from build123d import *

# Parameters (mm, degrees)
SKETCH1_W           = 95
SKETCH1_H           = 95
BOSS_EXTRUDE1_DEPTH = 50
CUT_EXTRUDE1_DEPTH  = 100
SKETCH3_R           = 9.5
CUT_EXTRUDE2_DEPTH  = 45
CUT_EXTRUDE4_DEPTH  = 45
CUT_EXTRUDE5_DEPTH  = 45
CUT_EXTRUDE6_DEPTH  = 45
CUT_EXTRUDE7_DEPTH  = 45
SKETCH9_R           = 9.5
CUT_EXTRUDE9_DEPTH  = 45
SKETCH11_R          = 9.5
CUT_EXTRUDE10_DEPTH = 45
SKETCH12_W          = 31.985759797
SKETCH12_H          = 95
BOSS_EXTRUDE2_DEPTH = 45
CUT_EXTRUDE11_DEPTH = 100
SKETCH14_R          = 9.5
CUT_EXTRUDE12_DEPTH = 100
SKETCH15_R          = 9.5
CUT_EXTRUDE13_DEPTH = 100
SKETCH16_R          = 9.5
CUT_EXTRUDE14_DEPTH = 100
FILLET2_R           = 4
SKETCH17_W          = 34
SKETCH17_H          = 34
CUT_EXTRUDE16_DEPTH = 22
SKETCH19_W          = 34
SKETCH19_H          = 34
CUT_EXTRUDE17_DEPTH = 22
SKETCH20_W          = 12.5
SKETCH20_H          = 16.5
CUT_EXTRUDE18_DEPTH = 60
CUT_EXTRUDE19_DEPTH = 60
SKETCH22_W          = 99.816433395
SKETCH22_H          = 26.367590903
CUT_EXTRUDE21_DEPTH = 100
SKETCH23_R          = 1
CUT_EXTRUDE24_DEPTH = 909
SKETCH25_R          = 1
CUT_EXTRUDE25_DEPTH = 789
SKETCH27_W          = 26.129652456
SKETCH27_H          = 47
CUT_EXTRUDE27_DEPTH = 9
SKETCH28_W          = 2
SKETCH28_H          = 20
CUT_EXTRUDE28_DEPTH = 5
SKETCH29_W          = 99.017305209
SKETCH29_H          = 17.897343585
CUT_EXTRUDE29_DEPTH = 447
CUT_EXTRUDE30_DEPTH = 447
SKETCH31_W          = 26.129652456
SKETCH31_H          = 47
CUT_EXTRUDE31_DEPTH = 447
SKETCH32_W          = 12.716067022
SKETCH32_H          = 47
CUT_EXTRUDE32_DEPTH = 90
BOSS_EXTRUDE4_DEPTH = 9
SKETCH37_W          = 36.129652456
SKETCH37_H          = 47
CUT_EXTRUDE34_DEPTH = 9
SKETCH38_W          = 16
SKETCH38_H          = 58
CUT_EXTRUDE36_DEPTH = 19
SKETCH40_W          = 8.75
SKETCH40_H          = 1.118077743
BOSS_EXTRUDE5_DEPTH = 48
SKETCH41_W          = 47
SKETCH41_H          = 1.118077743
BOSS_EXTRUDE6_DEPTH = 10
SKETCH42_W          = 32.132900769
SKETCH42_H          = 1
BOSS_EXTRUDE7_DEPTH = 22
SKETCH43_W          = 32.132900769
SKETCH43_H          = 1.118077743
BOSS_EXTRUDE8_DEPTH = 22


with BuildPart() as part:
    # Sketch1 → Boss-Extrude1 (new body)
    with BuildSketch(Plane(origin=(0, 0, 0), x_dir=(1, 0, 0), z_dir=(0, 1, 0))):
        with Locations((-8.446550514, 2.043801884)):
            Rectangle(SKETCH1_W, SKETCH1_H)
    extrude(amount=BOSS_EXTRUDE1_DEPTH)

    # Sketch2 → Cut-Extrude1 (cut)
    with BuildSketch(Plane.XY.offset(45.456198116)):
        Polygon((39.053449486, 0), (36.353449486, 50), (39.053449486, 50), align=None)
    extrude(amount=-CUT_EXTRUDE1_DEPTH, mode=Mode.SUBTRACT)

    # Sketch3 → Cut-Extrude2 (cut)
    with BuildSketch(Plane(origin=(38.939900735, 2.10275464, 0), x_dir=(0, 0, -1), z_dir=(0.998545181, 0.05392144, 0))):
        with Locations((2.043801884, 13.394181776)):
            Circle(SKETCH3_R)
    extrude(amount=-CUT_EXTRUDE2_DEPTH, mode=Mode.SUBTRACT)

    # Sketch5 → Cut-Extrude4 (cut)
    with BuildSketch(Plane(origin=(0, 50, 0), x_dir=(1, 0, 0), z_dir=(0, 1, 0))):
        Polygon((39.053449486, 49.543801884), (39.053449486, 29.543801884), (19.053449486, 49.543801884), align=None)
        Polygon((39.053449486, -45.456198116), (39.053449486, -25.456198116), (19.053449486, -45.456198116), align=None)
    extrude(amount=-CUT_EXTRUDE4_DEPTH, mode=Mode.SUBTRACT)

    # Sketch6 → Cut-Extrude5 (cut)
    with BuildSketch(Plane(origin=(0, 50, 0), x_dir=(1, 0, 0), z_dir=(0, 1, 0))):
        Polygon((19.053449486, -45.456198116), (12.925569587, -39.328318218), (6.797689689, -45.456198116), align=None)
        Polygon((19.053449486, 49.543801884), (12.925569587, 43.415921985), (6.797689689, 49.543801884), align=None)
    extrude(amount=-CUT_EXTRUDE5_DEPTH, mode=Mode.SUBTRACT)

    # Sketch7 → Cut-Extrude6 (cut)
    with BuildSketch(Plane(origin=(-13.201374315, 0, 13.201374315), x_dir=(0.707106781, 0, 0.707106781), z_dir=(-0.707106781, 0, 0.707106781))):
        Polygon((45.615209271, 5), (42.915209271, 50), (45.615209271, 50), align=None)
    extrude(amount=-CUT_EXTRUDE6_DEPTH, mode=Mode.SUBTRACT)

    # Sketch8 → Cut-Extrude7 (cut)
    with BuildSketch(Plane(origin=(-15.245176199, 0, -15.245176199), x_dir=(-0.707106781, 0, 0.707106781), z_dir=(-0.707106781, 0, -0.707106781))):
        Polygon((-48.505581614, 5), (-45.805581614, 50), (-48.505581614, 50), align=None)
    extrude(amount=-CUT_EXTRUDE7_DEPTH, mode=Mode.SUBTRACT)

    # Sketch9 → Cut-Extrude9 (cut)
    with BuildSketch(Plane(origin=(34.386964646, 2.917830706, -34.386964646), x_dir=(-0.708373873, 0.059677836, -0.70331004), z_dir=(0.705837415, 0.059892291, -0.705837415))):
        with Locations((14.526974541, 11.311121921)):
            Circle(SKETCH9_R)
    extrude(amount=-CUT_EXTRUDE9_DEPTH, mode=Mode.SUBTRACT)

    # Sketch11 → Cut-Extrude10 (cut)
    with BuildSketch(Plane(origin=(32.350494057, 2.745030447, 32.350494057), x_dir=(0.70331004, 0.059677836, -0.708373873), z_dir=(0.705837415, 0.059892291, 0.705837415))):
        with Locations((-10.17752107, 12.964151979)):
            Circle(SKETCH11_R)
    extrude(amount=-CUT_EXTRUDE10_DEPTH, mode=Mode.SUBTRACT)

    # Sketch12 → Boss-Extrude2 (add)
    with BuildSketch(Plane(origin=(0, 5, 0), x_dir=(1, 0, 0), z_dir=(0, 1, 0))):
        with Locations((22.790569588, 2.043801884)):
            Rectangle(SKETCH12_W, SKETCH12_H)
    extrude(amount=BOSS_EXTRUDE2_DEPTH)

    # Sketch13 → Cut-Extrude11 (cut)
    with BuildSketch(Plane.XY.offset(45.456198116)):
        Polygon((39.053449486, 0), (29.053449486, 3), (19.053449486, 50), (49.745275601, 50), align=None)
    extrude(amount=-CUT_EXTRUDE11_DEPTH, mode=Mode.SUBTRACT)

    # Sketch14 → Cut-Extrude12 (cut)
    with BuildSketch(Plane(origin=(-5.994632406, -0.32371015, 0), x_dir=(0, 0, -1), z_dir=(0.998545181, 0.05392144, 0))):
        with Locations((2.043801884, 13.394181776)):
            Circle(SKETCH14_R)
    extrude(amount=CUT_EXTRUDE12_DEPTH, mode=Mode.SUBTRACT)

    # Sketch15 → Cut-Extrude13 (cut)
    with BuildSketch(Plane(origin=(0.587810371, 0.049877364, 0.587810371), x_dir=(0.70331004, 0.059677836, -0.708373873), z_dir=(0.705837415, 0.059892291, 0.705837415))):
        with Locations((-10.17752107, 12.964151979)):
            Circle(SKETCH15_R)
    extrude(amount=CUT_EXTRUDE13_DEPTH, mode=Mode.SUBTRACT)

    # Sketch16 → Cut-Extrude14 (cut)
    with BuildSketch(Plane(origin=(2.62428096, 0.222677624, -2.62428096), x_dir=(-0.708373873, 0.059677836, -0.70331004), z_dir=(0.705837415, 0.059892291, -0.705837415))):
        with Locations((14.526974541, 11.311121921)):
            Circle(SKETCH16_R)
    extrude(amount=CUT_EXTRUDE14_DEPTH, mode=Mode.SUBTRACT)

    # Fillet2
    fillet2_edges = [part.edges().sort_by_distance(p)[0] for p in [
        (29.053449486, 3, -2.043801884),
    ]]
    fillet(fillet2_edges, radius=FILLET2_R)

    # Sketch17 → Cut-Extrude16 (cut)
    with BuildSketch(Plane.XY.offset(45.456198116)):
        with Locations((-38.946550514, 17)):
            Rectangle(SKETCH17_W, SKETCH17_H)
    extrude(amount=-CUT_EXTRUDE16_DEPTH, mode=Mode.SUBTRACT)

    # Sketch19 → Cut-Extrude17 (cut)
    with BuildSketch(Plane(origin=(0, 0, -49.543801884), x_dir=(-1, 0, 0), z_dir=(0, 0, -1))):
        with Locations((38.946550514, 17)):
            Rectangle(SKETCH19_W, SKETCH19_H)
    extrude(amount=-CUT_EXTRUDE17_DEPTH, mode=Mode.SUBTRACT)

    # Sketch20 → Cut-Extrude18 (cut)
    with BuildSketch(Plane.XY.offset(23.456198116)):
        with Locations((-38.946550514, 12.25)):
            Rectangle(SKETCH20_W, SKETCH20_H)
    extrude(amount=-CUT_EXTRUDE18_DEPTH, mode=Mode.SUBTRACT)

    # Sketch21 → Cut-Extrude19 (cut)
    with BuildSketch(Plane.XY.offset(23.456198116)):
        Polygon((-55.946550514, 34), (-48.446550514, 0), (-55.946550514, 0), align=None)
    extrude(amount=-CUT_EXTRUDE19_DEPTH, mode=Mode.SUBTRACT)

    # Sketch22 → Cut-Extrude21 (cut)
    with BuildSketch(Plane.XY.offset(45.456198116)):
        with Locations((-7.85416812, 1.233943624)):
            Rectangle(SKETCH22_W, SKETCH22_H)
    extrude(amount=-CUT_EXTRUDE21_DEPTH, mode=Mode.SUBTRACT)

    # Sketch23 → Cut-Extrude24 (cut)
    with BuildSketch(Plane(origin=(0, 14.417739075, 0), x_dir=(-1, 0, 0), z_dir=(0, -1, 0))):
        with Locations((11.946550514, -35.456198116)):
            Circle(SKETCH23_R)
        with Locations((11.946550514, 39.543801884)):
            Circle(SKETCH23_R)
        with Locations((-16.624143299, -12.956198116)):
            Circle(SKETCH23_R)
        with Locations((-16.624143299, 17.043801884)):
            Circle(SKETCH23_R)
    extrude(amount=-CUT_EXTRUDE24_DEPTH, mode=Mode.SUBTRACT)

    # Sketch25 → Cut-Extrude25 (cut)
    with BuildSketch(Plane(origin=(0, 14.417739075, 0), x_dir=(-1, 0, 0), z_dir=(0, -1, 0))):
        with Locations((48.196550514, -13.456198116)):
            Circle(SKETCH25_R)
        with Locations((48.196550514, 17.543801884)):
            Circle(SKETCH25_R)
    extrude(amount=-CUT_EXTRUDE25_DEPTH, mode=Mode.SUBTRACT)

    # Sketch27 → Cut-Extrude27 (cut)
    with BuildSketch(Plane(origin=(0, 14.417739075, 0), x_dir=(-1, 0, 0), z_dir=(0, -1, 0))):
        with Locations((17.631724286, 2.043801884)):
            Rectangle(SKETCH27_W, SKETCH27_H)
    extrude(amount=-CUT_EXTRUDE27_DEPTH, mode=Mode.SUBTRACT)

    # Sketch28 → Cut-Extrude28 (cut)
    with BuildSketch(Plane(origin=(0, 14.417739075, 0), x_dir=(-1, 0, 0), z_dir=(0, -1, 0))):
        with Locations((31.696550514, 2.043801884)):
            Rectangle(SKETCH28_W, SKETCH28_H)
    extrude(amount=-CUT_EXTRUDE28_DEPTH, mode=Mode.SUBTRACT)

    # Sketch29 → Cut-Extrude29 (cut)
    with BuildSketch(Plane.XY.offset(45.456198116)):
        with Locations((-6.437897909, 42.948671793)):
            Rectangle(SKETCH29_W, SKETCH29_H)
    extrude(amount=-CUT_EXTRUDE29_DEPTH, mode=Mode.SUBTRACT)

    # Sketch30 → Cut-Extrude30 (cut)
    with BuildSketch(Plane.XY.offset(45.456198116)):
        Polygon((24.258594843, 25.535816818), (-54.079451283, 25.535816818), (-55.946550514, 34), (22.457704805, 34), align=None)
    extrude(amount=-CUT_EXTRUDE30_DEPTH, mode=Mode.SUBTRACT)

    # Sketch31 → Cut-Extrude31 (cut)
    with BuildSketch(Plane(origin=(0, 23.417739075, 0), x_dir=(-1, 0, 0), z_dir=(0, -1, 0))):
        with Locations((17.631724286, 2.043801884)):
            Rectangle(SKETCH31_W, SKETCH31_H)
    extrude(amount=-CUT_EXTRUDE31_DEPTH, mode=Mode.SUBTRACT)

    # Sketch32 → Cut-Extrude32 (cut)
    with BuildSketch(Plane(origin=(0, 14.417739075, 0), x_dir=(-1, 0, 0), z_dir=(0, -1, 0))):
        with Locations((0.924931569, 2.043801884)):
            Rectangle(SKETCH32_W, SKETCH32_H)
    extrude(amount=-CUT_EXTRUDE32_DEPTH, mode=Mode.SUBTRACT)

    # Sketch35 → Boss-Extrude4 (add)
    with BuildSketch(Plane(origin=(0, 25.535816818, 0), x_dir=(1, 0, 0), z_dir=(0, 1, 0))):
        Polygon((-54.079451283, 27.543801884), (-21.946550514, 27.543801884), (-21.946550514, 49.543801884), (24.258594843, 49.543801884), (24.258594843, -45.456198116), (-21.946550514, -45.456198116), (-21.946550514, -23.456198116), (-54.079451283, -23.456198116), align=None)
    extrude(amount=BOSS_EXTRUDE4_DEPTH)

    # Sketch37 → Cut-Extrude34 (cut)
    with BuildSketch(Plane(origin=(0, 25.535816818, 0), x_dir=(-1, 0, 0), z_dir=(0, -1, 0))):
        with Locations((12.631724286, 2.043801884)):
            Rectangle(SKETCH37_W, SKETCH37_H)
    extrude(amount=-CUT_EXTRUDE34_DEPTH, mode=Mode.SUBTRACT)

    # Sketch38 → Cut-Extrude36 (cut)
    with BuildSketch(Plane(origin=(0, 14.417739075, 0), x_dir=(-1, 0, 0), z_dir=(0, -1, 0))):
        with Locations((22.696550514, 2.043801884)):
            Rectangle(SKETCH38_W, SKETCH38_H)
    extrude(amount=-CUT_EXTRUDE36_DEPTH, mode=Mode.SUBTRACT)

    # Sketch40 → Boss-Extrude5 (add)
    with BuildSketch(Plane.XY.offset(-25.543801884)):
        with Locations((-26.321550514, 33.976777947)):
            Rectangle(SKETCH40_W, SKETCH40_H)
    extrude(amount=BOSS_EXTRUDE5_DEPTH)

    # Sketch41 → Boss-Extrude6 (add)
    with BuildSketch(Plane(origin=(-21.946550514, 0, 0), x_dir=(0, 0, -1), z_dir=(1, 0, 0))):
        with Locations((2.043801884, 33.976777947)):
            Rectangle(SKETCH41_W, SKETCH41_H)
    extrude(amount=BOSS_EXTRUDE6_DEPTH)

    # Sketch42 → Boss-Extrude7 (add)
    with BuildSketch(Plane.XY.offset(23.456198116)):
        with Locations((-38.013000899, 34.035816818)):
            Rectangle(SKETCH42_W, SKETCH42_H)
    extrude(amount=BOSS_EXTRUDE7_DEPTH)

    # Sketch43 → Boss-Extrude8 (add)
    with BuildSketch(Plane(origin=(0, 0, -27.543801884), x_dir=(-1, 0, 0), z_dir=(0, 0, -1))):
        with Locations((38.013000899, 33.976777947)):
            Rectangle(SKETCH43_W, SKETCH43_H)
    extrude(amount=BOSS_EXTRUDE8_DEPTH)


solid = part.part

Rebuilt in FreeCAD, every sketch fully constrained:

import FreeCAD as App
import Part
import Sketcher


def edges_at(feature, points):
    """Names of the edges that pass closest to the given points."""
    edges = feature.Shape.Edges
    near = lambda p: min(range(len(edges)), key=lambda i: edges[i].distToShape(Part.Vertex(*p))[0])
    return sorted({f"Edge{near(p) + 1}" for p in points})

doc = App.newDocument("Part")
body = doc.addObject("PartDesign::Body", "Body")

# Sketch on XZ plane
sketch1 = body.newObject("Sketcher::SketchObject", "Sketch")
sketch1.AttachmentSupport = (doc.getObject("XZ_Plane"), [""])
sketch1.MapMode = "FlatFace"
sketch1.addGeometry([
    Part.LineSegment(App.Vector(-56, -50, 0), App.Vector(-56, 45, 0)),
    Part.LineSegment(App.Vector(-56, 45, 0), App.Vector(39, 45, 0)),
    Part.LineSegment(App.Vector(39, 45, 0), App.Vector(39, -50, 0)),
    Part.LineSegment(App.Vector(39, -50, 0), App.Vector(-56, -50, 0)),
], False)
sketch1.addConstraint([
    Sketcher.Constraint("Coincident", 0, 2, 1, 1),
    Sketcher.Constraint("Coincident", 1, 2, 2, 1),
    Sketcher.Constraint("Coincident", 2, 2, 3, 1),
    Sketcher.Constraint("Coincident", 3, 2, 0, 1),
    Sketcher.Constraint("Vertical", 0),
    Sketcher.Constraint("Horizontal", 1),
    Sketcher.Constraint("Vertical", 2),
    Sketcher.Constraint("Horizontal", 3),
    Sketcher.Constraint("Equal", 3, 0),
    Sketcher.Constraint("DistanceX", 1, 1, 1, 2, 95.0),
    Sketcher.Constraint("DistanceY", -1, 1, 0, 2, 45.456198),
    Sketcher.Constraint("DistanceX", 0, 2, -1, 1, 55.946551),
])
pad1 = body.newObject("PartDesign::Pad", "Pad")
pad1.Profile = sketch1
pad1.Length = 50
pad1.Reversed = True

# Sketch on XY plane
sketch2 = body.newObject("Sketcher::SketchObject", "Sketch001")
sketch2.AttachmentSupport = (doc.getObject("XY_Plane"), [""])
sketch2.MapMode = "FlatFace"
sketch2.AttachmentOffset = App.Placement(App.Vector(0, 0, 45.456198), App.Rotation())
sketch2.addGeometry([
    Part.LineSegment(App.Vector(36.4, 50, 0), App.Vector(39.1, 0, 0)),
    Part.LineSegment(App.Vector(39.1, 0, 0), App.Vector(39.1, 50, 0)),
    Part.LineSegment(App.Vector(39.1, 50, 0), App.Vector(36.4, 50, 0)),
], False)
sketch2.addConstraint([
    Sketcher.Constraint("Coincident", 0, 2, 1, 1),
    Sketcher.Constraint("Coincident", 1, 2, 2, 1),
    Sketcher.Constraint("Coincident", 2, 2, 0, 1),
    Sketcher.Constraint("Vertical", 1),
    Sketcher.Constraint("Horizontal", 2),
    Sketcher.Constraint("PointOnObject", 0, 2, -1),
    Sketcher.Constraint("DistanceY", 1, 1, 1, 2, 50.0),
    Sketcher.Constraint("DistanceX", 2, 2, 2, 1, 2.7),
    Sketcher.Constraint("DistanceX", -1, 1, 0, 2, 39.053449),
])
pocket1 = body.newObject("PartDesign::Pocket", "Pocket")
pocket1.Profile = sketch2
pocket1.Length = 100

# Sketch on an angled plane
sketch3 = body.newObject("Sketcher::SketchObject", "Sketch002")
sketch3.Placement = App.Placement(App.Vector(38.939901, 2.102755, 0), App.Rotation(App.Vector(0, 0, -1), App.Vector(-0.05392144, 0.998545181, 0), App.Vector(0.998545181, 0.05392144, 0), "ZXY"))
sketch3.addGeometry(Part.Circle(App.Vector(2, 13, 0), App.Vector(0, 0, 1), 10), False)
sketch3.addConstraint([
    Sketcher.Constraint("Diameter", 0, 19.0),
    Sketcher.Constraint("DistanceX", -1, 1, 0, 3, 2.043802),
    Sketcher.Constraint("DistanceY", -1, 1, 0, 3, 13.394182),
])
pocket2 = body.newObject("PartDesign::Pocket", "Pocket001")
pocket2.Profile = sketch3
pocket2.Length = 45

# Sketch on XZ plane
sketch4 = body.newObject("Sketcher::SketchObject", "Sketch003")
sketch4.AttachmentSupport = (doc.getObject("XZ_Plane"), [""])
sketch4.MapMode = "FlatFace"
sketch4.AttachmentOffset = App.Placement(App.Vector(0, 0, -50), App.Rotation())
sketch4.addGeometry([
    Part.LineSegment(App.Vector(39, -30, 0), App.Vector(39, -50, 0)),  # 0
    Part.LineSegment(App.Vector(39, -50, 0), App.Vector(19, -50, 0)),  # 1
    Part.LineSegment(App.Vector(19, -50, 0), App.Vector(39, -30, 0)),  # 2
    Part.LineSegment(App.Vector(39, 45, 0), App.Vector(39, 25, 0)),  # 3
    Part.LineSegment(App.Vector(39, 25, 0), App.Vector(19, 45, 0)),  # 4
    Part.LineSegment(App.Vector(19, 45, 0), App.Vector(39, 45, 0)),  # 5
], False)
sketch4.addConstraint([
    Sketcher.Constraint("Coincident", 0, 2, 1, 1),
    Sketcher.Constraint("Coincident", 1, 2, 2, 1),
    Sketcher.Constraint("Coincident", 2, 2, 0, 1),
    Sketcher.Constraint("Coincident", 3, 2, 4, 1),
    Sketcher.Constraint("Coincident", 4, 2, 5, 1),
    Sketcher.Constraint("Coincident", 5, 2, 3, 1),
    Sketcher.Constraint("Vertical", 0),
    Sketcher.Constraint("Horizontal", 1),
    Sketcher.Constraint("Vertical", 3),
    Sketcher.Constraint("Horizontal", 5),
    Sketcher.Constraint("Perpendicular", 2, 4),
    Sketcher.Constraint("Vertical", 2, 2, 3, 2),
    Sketcher.Constraint("Vertical", 1, 2, 4, 2),
    Sketcher.Constraint("Equal", 5, 0),
    Sketcher.Constraint("DistanceX", 1, 2, 1, 1, 20.0),
    Sketcher.Constraint("DistanceY", 2, 2, 3, 2, 55.0),
    Sketcher.Constraint("DistanceY", 0, 2, -1, 1, 49.543802),
    Sketcher.Constraint("DistanceX", -1, 1, 0, 2, 39.053449),
])
pocket3 = body.newObject("PartDesign::Pocket", "Pocket002")
pocket3.Profile = sketch4
pocket3.Length = 45
pocket3.Reversed = True

# Sketch on XZ plane
sketch5 = body.newObject("Sketcher::SketchObject", "Sketch004")
sketch5.AttachmentSupport = (doc.getObject("XZ_Plane"), [""])
sketch5.MapMode = "FlatFace"
sketch5.AttachmentOffset = App.Placement(App.Vector(0, 0, -50), App.Rotation())
sketch5.addGeometry([
    Part.LineSegment(App.Vector(19, 45, 0), App.Vector(13, 39, 0)),  # 0
    Part.LineSegment(App.Vector(13, 39, 0), App.Vector(7, 45, 0)),  # 1
    Part.LineSegment(App.Vector(7, 45, 0), App.Vector(19, 45, 0)),  # 2
    Part.LineSegment(App.Vector(13, -43, 0), App.Vector(19, -50, 0)),  # 3
    Part.LineSegment(App.Vector(19, -50, 0), App.Vector(7, -50, 0)),  # 4
    Part.LineSegment(App.Vector(7, -50, 0), App.Vector(13, -43, 0)),  # 5
], False)
sketch5.addConstraint([
    Sketcher.Constraint("Coincident", 0, 2, 1, 1),
    Sketcher.Constraint("Coincident", 1, 2, 2, 1),
    Sketcher.Constraint("Coincident", 2, 2, 0, 1),
    Sketcher.Constraint("Coincident", 3, 2, 4, 1),
    Sketcher.Constraint("Coincident", 4, 2, 5, 1),
    Sketcher.Constraint("Coincident", 5, 2, 3, 1),
    Sketcher.Constraint("Horizontal", 2),
    Sketcher.Constraint("Horizontal", 4),
    Sketcher.Constraint("Perpendicular", 0, 1),
    Sketcher.Constraint("Parallel", 1, 3),
    Sketcher.Constraint("Perpendicular", 3, 5),
    Sketcher.Constraint("Vertical", 2, 2, 3, 2),
    Sketcher.Constraint("Vertical", 1, 2, 4, 2),
    Sketcher.Constraint("Vertical", 0, 2, 5, 2),
    Sketcher.Constraint("DistanceY", 3, 2, 2, 2, 95.0),
    Sketcher.Constraint("DistanceX", 2, 1, 2, 2, 12.25576),
    Sketcher.Constraint("DistanceY", -1, 1, 1, 2, 45.456198),
    Sketcher.Constraint("DistanceX", -1, 1, 0, 2, 12.92557),
])
pocket4 = body.newObject("PartDesign::Pocket", "Pocket003")
pocket4.Profile = sketch5
pocket4.Length = 45
pocket4.Reversed = True

# Sketch on an angled plane
sketch6 = body.newObject("Sketcher::SketchObject", "Sketch005")
sketch6.Placement = App.Placement(App.Vector(-13.201374, 0, 13.201374), App.Rotation(App.Vector(0.707106781, 0, 0.707106781), App.Vector(0, 0.999999999, 0), App.Vector(-0.707106781, 0, 0.707106781), "ZXY"))
sketch6.addGeometry([
    Part.LineSegment(App.Vector(42.9, 50, 0), App.Vector(45.6, 5, 0)),
    Part.LineSegment(App.Vector(45.6, 5, 0), App.Vector(45.6, 50, 0)),
    Part.LineSegment(App.Vector(45.6, 50, 0), App.Vector(42.9, 50, 0)),
], False)
sketch6.addConstraint([
    Sketcher.Constraint("Coincident", 0, 2, 1, 1),
    Sketcher.Constraint("Coincident", 1, 2, 2, 1),
    Sketcher.Constraint("Coincident", 2, 2, 0, 1),
    Sketcher.Constraint("Vertical", 1),
    Sketcher.Constraint("Horizontal", 2),
    Sketcher.Constraint("DistanceY", 1, 1, 1, 2, 45.0),
    Sketcher.Constraint("DistanceX", 2, 2, 2, 1, 2.7),
    Sketcher.Constraint("DistanceY", -1, 1, 0, 2, 5.0),
    Sketcher.Constraint("DistanceX", -1, 1, 0, 2, 45.615209),
])
pocket5 = body.newObject("PartDesign::Pocket", "Pocket004")
pocket5.Profile = sketch6
pocket5.Length = 45

# Sketch on an angled plane
sketch7 = body.newObject("Sketcher::SketchObject", "Sketch006")
sketch7.Placement = App.Placement(App.Vector(-15.245176, 0, -15.245176), App.Rotation(App.Vector(-0.707106781, 0, 0.707106781), App.Vector(0, 0.999999999, 0), App.Vector(-0.707106781, 0, -0.707106781), "ZXY"))
sketch7.addGeometry([
    Part.LineSegment(App.Vector(-48.5, 5, 0), App.Vector(-45.8, 50, 0)),
    Part.LineSegment(App.Vector(-45.8, 50, 0), App.Vector(-48.5, 50, 0)),
    Part.LineSegment(App.Vector(-48.5, 50, 0), App.Vector(-48.5, 5, 0)),
], False)
sketch7.addConstraint([
    Sketcher.Constraint("Coincident", 0, 2, 1, 1),
    Sketcher.Constraint("Coincident", 1, 2, 2, 1),
    Sketcher.Constraint("Coincident", 2, 2, 0, 1),
    Sketcher.Constraint("Horizontal", 1),
    Sketcher.Constraint("Vertical", 2),
    Sketcher.Constraint("DistanceY", 2, 2, 2, 1, 45.0),
    Sketcher.Constraint("DistanceX", 1, 2, 1, 1, 2.7),
    Sketcher.Constraint("DistanceY", -1, 1, 0, 2, 50.0),
    Sketcher.Constraint("DistanceX", 0, 2, -1, 1, 45.805582),
])
pocket6 = body.newObject("PartDesign::Pocket", "Pocket005")
pocket6.Profile = sketch7
pocket6.Length = 45

# Sketch on an angled plane
sketch8 = body.newObject("Sketcher::SketchObject", "Sketch007")
sketch8.Placement = App.Placement(App.Vector(34.386965, 2.917831, -34.386965), App.Rotation(App.Vector(-0.708373873, 0.059677836, -0.70331004), App.Vector(0, 0.996419324, 0.084548984), App.Vector(0.705837415, 0.059892291, -0.705837415), "ZXY"))
sketch8.addGeometry(Part.Circle(App.Vector(15, 11, 0), App.Vector(0, 0, 1), 10), False)
sketch8.addConstraint([
    Sketcher.Constraint("Diameter", 0, 19.0),
    Sketcher.Constraint("DistanceY", -1, 1, 0, 3, 11.311122),
    Sketcher.Constraint("DistanceX", -1, 1, 0, 3, 14.526975),
])
pocket7 = body.newObject("PartDesign::Pocket", "Pocket006")
pocket7.Profile = sketch8
pocket7.Length = 45

# Sketch on an angled plane
sketch9 = body.newObject("Sketcher::SketchObject", "Sketch008")
sketch9.Placement = App.Placement(App.Vector(32.350494, 2.74503, 32.350494), App.Rotation(App.Vector(0.70331004, 0.059677836, -0.708373873), App.Vector(-0.084548984, 0.996419324, 0), App.Vector(0.705837415, 0.059892291, 0.705837415), "ZXY"))
sketch9.addGeometry(Part.Circle(App.Vector(-10, 13, 0), App.Vector(0, 0, 1), 10), False)
sketch9.addConstraint([
    Sketcher.Constraint("Diameter", 0, 19.0),
    Sketcher.Constraint("DistanceX", 0, 3, -1, 1, 10.177521),
    Sketcher.Constraint("DistanceY", -1, 1, 0, 3, 12.964152),
])
pocket8 = body.newObject("PartDesign::Pocket", "Pocket007")
pocket8.Profile = sketch9
pocket8.Length = 45

# Sketch on XZ plane
sketch10 = body.newObject("Sketcher::SketchObject", "Sketch009")
sketch10.AttachmentSupport = (doc.getObject("XZ_Plane"), [""])
sketch10.MapMode = "FlatFace"
sketch10.AttachmentOffset = App.Placement(App.Vector(0, 0, -5), App.Rotation())
sketch10.addGeometry([
    Part.LineSegment(App.Vector(7, -50, 0), App.Vector(7, 45, 0)),
    Part.LineSegment(App.Vector(7, 45, 0), App.Vector(39, 45, 0)),
    Part.LineSegment(App.Vector(39, 45, 0), App.Vector(39, -50, 0)),
    Part.LineSegment(App.Vector(39, -50, 0), App.Vector(7, -50, 0)),
], False)
sketch10.addConstraint([
    Sketcher.Constraint("Coincident", 0, 2, 1, 1),
    Sketcher.Constraint("Coincident", 1, 2, 2, 1),
    Sketcher.Constraint("Coincident", 2, 2, 3, 1),
    Sketcher.Constraint("Coincident", 3, 2, 0, 1),
    Sketcher.Constraint("Vertical", 0),
    Sketcher.Constraint("Horizontal", 1),
    Sketcher.Constraint("Vertical", 2),
    Sketcher.Constraint("Horizontal", 3),
    Sketcher.Constraint("DistanceY", 0, 1, 0, 2, 95.0),
    Sketcher.Constraint("DistanceX", 1, 1, 1, 2, 31.98576),
    Sketcher.Constraint("DistanceY", -1, 1, 0, 2, 45.456198),
    Sketcher.Constraint("DistanceX", -1, 1, 0, 2, 6.79769),
])
pad2 = body.newObject("PartDesign::Pad", "Pad001")
pad2.Profile = sketch10
pad2.Length = 45
pad2.Reversed = True

# Sketch on XY plane
sketch11 = body.newObject("Sketcher::SketchObject", "Sketch010")
sketch11.AttachmentSupport = (doc.getObject("XY_Plane"), [""])
sketch11.MapMode = "FlatFace"
sketch11.AttachmentOffset = App.Placement(App.Vector(0, 0, 45.456198), App.Rotation())
sketch11.addGeometry([
    Part.LineSegment(App.Vector(29, 3, 0), App.Vector(39, 0, 0)),
    Part.LineSegment(App.Vector(39, 0, 0), App.Vector(50, 50, 0)),
    Part.LineSegment(App.Vector(50, 50, 0), App.Vector(19, 50, 0)),
    Part.LineSegment(App.Vector(19, 50, 0), App.Vector(29, 3, 0)),
], False)
sketch11.addConstraint([
    Sketcher.Constraint("Coincident", 0, 2, 1, 1),
    Sketcher.Constraint("Coincident", 1, 2, 2, 1),
    Sketcher.Constraint("Coincident", 2, 2, 3, 1),
    Sketcher.Constraint("Coincident", 3, 2, 0, 1),
    Sketcher.Constraint("Horizontal", 2),
    Sketcher.Constraint("PointOnObject", 0, 2, -1),
    Sketcher.Constraint("DistanceY", -1, 1, 1, 2, 50.0),
    Sketcher.Constraint("DistanceY", -1, 1, 3, 2, 3.0),
    Sketcher.Constraint("DistanceX", 2, 2, 0, 2, 20.0),
    Sketcher.Constraint("DistanceX", 3, 2, 0, 2, 10.0),
    Sketcher.Constraint("DistanceX", 2, 2, 2, 1, 30.691826),
    Sketcher.Constraint("DistanceX", -1, 1, 0, 2, 39.053449),
])
pocket9 = body.newObject("PartDesign::Pocket", "Pocket008")
pocket9.Profile = sketch11
pocket9.Length = 100

# Sketch on an angled plane
sketch12 = body.newObject("Sketcher::SketchObject", "Sketch011")
sketch12.Placement = App.Placement(App.Vector(-5.994632, -0.32371, 0), App.Rotation(App.Vector(0, 0, -1), App.Vector(-0.05392144, 0.998545181, 0), App.Vector(0.998545181, 0.05392144, 0), "ZXY"))
sketch12.addGeometry(Part.Circle(App.Vector(2, 13, 0), App.Vector(0, 0, 1), 10), False)
sketch12.addConstraint([
    Sketcher.Constraint("Diameter", 0, 19.0),
    Sketcher.Constraint("DistanceX", -1, 1, 0, 3, 2.043802),
    Sketcher.Constraint("DistanceY", -1, 1, 0, 3, 13.394182),
])
pocket10 = body.newObject("PartDesign::Pocket", "Pocket009")
pocket10.Profile = sketch12
pocket10.Length = 100
pocket10.Reversed = True

# Sketch on an angled plane
sketch13 = body.newObject("Sketcher::SketchObject", "Sketch012")
sketch13.Placement = App.Placement(App.Vector(0.58781, 0.049877, 0.58781), App.Rotation(App.Vector(0.70331004, 0.059677836, -0.708373873), App.Vector(-0.084548984, 0.996419324, 0), App.Vector(0.705837415, 0.059892291, 0.705837415), "ZXY"))
sketch13.addGeometry(Part.Circle(App.Vector(-10, 13, 0), App.Vector(0, 0, 1), 10), False)
sketch13.addConstraint([
    Sketcher.Constraint("Diameter", 0, 19.0),
    Sketcher.Constraint("DistanceX", 0, 3, -1, 1, 10.177521),
    Sketcher.Constraint("DistanceY", -1, 1, 0, 3, 12.964152),
])
pocket11 = body.newObject("PartDesign::Pocket", "Pocket010")
pocket11.Profile = sketch13
pocket11.Length = 100
pocket11.Reversed = True

# Sketch on an angled plane
sketch14 = body.newObject("Sketcher::SketchObject", "Sketch013")
sketch14.Placement = App.Placement(App.Vector(2.624281, 0.222678, -2.624281), App.Rotation(App.Vector(-0.708373873, 0.059677836, -0.70331004), App.Vector(0, 0.996419324, 0.084548984), App.Vector(0.705837415, 0.059892291, -0.705837415), "ZXY"))
sketch14.addGeometry(Part.Circle(App.Vector(15, 11, 0), App.Vector(0, 0, 1), 10), False)
sketch14.addConstraint([
    Sketcher.Constraint("Diameter", 0, 19.0),
    Sketcher.Constraint("DistanceY", -1, 1, 0, 3, 11.311122),
    Sketcher.Constraint("DistanceX", -1, 1, 0, 3, 14.526975),
])
pocket12 = body.newObject("PartDesign::Pocket", "Pocket011")
pocket12.Profile = sketch14
pocket12.Length = 100
pocket12.Reversed = True
doc.recompute()

fillet = body.newObject("PartDesign::Fillet", "Fillet")
fillet.Base = (pocket12, edges_at(pocket12, [(29.053, 3, -2.044)]))
fillet.Radius = 4

# Sketch on XY plane
sketch15 = body.newObject("Sketcher::SketchObject", "Sketch014")
sketch15.AttachmentSupport = (doc.getObject("XY_Plane"), [""])
sketch15.MapMode = "FlatFace"
sketch15.AttachmentOffset = App.Placement(App.Vector(0, 0, 45.456198), App.Rotation())
sketch15.addGeometry([
    Part.LineSegment(App.Vector(-56, 34, 0), App.Vector(-56, 0, 0)),
    Part.LineSegment(App.Vector(-56, 0, 0), App.Vector(-22, 0, 0)),
    Part.LineSegment(App.Vector(-22, 0, 0), App.Vector(-22, 34, 0)),
    Part.LineSegment(App.Vector(-22, 34, 0), App.Vector(-56, 34, 0)),
], False)
sketch15.addConstraint([
    Sketcher.Constraint("Coincident", 0, 2, 1, 1),
    Sketcher.Constraint("Coincident", 1, 2, 2, 1),
    Sketcher.Constraint("Coincident", 2, 2, 3, 1),
    Sketcher.Constraint("Coincident", 3, 2, 0, 1),
    Sketcher.Constraint("Vertical", 0),
    Sketcher.Constraint("Horizontal", 1),
    Sketcher.Constraint("Vertical", 2),
    Sketcher.Constraint("Horizontal", 3),
    Sketcher.Constraint("PointOnObject", 0, 2, -1),
    Sketcher.Constraint("Equal", 3, 0),
    Sketcher.Constraint("DistanceX", 1, 1, 1, 2, 34.0),
    Sketcher.Constraint("DistanceX", 0, 2, -1, 1, 55.946551),
])
pocket13 = body.newObject("PartDesign::Pocket", "Pocket012")
pocket13.Profile = sketch15
pocket13.Length = 22

# Sketch on XY plane
sketch16 = body.newObject("Sketcher::SketchObject", "Sketch015")
sketch16.AttachmentSupport = (doc.getObject("XY_Plane"), [""])
sketch16.MapMode = "FlatFace"
sketch16.AttachmentOffset = App.Placement(App.Vector(0, 0, -49.543802), App.Rotation())
sketch16.addGeometry([
    Part.LineSegment(App.Vector(-22, 34, 0), App.Vector(-22, 0, 0)),
    Part.LineSegment(App.Vector(-22, 0, 0), App.Vector(-56, 0, 0)),
    Part.LineSegment(App.Vector(-56, 0, 0), App.Vector(-56, 34, 0)),
    Part.LineSegment(App.Vector(-56, 34, 0), App.Vector(-22, 34, 0)),
], False)
sketch16.addConstraint([
    Sketcher.Constraint("Coincident", 0, 2, 1, 1),
    Sketcher.Constraint("Coincident", 1, 2, 2, 1),
    Sketcher.Constraint("Coincident", 2, 2, 3, 1),
    Sketcher.Constraint("Coincident", 3, 2, 0, 1),
    Sketcher.Constraint("Vertical", 0),
    Sketcher.Constraint("Horizontal", 1),
    Sketcher.Constraint("Vertical", 2),
    Sketcher.Constraint("Horizontal", 3),
    Sketcher.Constraint("PointOnObject", 0, 2, -1),
    Sketcher.Constraint("Equal", 3, 0),
    Sketcher.Constraint("DistanceX", 1, 2, 1, 1, 34.0),
    Sketcher.Constraint("DistanceX", 0, 2, -1, 1, 21.946551),
])
pocket14 = body.newObject("PartDesign::Pocket", "Pocket013")
pocket14.Profile = sketch16
pocket14.Length = 22
pocket14.Reversed = True

# Sketch on XY plane
sketch17 = body.newObject("Sketcher::SketchObject", "Sketch016")
sketch17.AttachmentSupport = (doc.getObject("XY_Plane"), [""])
sketch17.MapMode = "FlatFace"
sketch17.AttachmentOffset = App.Placement(App.Vector(0, 0, 23.456198), App.Rotation())
sketch17.addGeometry([
    Part.LineSegment(App.Vector(-45, 20, 0), App.Vector(-45, 4, 0)),
    Part.LineSegment(App.Vector(-45, 4, 0), App.Vector(-33, 4, 0)),
    Part.LineSegment(App.Vector(-33, 4, 0), App.Vector(-33, 20, 0)),
    Part.LineSegment(App.Vector(-33, 20, 0), App.Vector(-45, 20, 0)),
], False)
sketch17.addConstraint([
    Sketcher.Constraint("Coincident", 0, 2, 1, 1),
    Sketcher.Constraint("Coincident", 1, 2, 2, 1),
    Sketcher.Constraint("Coincident", 2, 2, 3, 1),
    Sketcher.Constraint("Coincident", 3, 2, 0, 1),
    Sketcher.Constraint("Vertical", 0),
    Sketcher.Constraint("Horizontal", 1),
    Sketcher.Constraint("Vertical", 2),
    Sketcher.Constraint("Horizontal", 3),
    Sketcher.Constraint("DistanceX", 1, 1, 1, 2, 12.5),
    Sketcher.Constraint("DistanceY", 0, 2, 0, 1, 16.5),
    Sketcher.Constraint("DistanceY", -1, 1, 0, 2, 4.0),
    Sketcher.Constraint("DistanceX", 0, 2, -1, 1, 45.196551),
])
pocket15 = body.newObject("PartDesign::Pocket", "Pocket014")
pocket15.Profile = sketch17
pocket15.Length = 60

# Sketch on XY plane
sketch18 = body.newObject("Sketcher::SketchObject", "Sketch017")
sketch18.AttachmentSupport = (doc.getObject("XY_Plane"), [""])
sketch18.MapMode = "FlatFace"
sketch18.AttachmentOffset = App.Placement(App.Vector(0, 0, 23.456198), App.Rotation())
sketch18.addGeometry([
    Part.LineSegment(App.Vector(-48, 0, 0), App.Vector(-56, 34, 0)),
    Part.LineSegment(App.Vector(-56, 34, 0), App.Vector(-56, 0, 0)),
    Part.LineSegment(App.Vector(-56, 0, 0), App.Vector(-48, 0, 0)),
], False)
sketch18.addConstraint([
    Sketcher.Constraint("Coincident", 0, 2, 1, 1),
    Sketcher.Constraint("Coincident", 1, 2, 2, 1),
    Sketcher.Constraint("Coincident", 2, 2, 0, 1),
    Sketcher.Constraint("Vertical", 1),
    Sketcher.Constraint("Horizontal", 2),
    Sketcher.Constraint("PointOnObject", 1, 2, -1),
    Sketcher.Constraint("DistanceY", 1, 2, 1, 1, 34.0),
    Sketcher.Constraint("DistanceX", 2, 1, 2, 2, 7.5),
    Sketcher.Constraint("DistanceX", 0, 2, -1, 1, 55.946551),
])
pocket16 = body.newObject("PartDesign::Pocket", "Pocket015")
pocket16.Profile = sketch18
pocket16.Length = 60

# Sketch on XY plane
sketch19 = body.newObject("Sketcher::SketchObject", "Sketch018")
sketch19.AttachmentSupport = (doc.getObject("XY_Plane"), [""])
sketch19.MapMode = "FlatFace"
sketch19.AttachmentOffset = App.Placement(App.Vector(0, 0, 45.456198), App.Rotation())
sketch19.addGeometry([
    Part.LineSegment(App.Vector(-58, 14, 0), App.Vector(-58, -12, 0)),
    Part.LineSegment(App.Vector(-58, -12, 0), App.Vector(42, -12, 0)),
    Part.LineSegment(App.Vector(42, -12, 0), App.Vector(42, 14, 0)),
    Part.LineSegment(App.Vector(42, 14, 0), App.Vector(-58, 14, 0)),
], False)
sketch19.addConstraint([
    Sketcher.Constraint("Coincident", 0, 2, 1, 1),
    Sketcher.Constraint("Coincident", 1, 2, 2, 1),
    Sketcher.Constraint("Coincident", 2, 2, 3, 1),
    Sketcher.Constraint("Coincident", 3, 2, 0, 1),
    Sketcher.Constraint("Vertical", 0),
    Sketcher.Constraint("Horizontal", 1),
    Sketcher.Constraint("Vertical", 2),
    Sketcher.Constraint("Horizontal", 3),
    Sketcher.Constraint("DistanceY", 0, 2, 0, 1, 26.367591),
    Sketcher.Constraint("DistanceX", 1, 1, 1, 2, 99.816433),
    Sketcher.Constraint("DistanceY", 0, 2, -1, 1, 11.949852),
    Sketcher.Constraint("DistanceX", -1, 1, 1, 2, 42.054049),
])
pocket17 = body.newObject("PartDesign::Pocket", "Pocket016")
pocket17.Profile = sketch19
pocket17.Length = 100

# Sketch on XZ plane
sketch20 = body.newObject("Sketcher::SketchObject", "Sketch019")
sketch20.AttachmentSupport = (doc.getObject("XZ_Plane"), [""])
sketch20.MapMode = "FlatFace"
sketch20.AttachmentOffset = App.Placement(App.Vector(0, 0, -14.417739), App.Rotation())
sketch20.addGeometry([
    Part.Circle(App.Vector(-11.9, 35.5, 0), App.Vector(0, 0, 1), 1),
    Part.Circle(App.Vector(-11.9, -39.5, 0), App.Vector(0, 0, 1), 1),
    Part.Circle(App.Vector(16.6, 13, 0), App.Vector(0, 0, 1), 1),
    Part.Circle(App.Vector(16.6, -17, 0), App.Vector(0, 0, 1), 1),
], False)
sketch20.addConstraint([
    Sketcher.Constraint("Equal", 0, 1),
    Sketcher.Constraint("Equal", 1, 2),
    Sketcher.Constraint("Equal", 2, 3),
    Sketcher.Constraint("Vertical", 0, 3, 1, 3),
    Sketcher.Constraint("Vertical", 2, 3, 3, 3),
    Sketcher.Constraint("Diameter", 0, 2.0),
    Sketcher.Constraint("DistanceY", 1, 3, 0, 3, 75.0),
    Sketcher.Constraint("DistanceY", 3, 3, 2, 3, 30.0),
    Sketcher.Constraint("DistanceY", 2, 3, 0, 3, 22.5),
    Sketcher.Constraint("DistanceY", -1, 1, 0, 3, 35.456198),
    Sketcher.Constraint("DistanceX", 0, 3, -1, 1, 11.946551),
    Sketcher.Constraint("DistanceX", -1, 1, 2, 3, 16.624143),
])
pocket18 = body.newObject("PartDesign::Pocket", "Pocket017")
pocket18.Profile = sketch20
pocket18.Length = 909

# Sketch on XZ plane
sketch21 = body.newObject("Sketcher::SketchObject", "Sketch020")
sketch21.AttachmentSupport = (doc.getObject("XZ_Plane"), [""])
sketch21.MapMode = "FlatFace"
sketch21.AttachmentOffset = App.Placement(App.Vector(0, 0, -14.417739), App.Rotation())
sketch21.addGeometry([
    Part.Circle(App.Vector(-48.2, 13.5, 0), App.Vector(0, 0, 1), 1),
    Part.Circle(App.Vector(-48.2, -17.5, 0), App.Vector(0, 0, 1), 1),
], False)
sketch21.addConstraint([
    Sketcher.Constraint("Equal", 0, 1),
    Sketcher.Constraint("Vertical", 0, 3, 1, 3),
    Sketcher.Constraint("Diameter", 0, 2.0),
    Sketcher.Constraint("DistanceY", 1, 3, 0, 3, 31.0),
    Sketcher.Constraint("DistanceY", -1, 1, 0, 3, 13.456198),
    Sketcher.Constraint("DistanceX", 0, 3, -1, 1, 48.196551),
])
pocket19 = body.newObject("PartDesign::Pocket", "Pocket018")
pocket19.Profile = sketch21
pocket19.Length = 789

# Sketch on XZ plane
sketch22 = body.newObject("Sketcher::SketchObject", "Sketch021")
sketch22.AttachmentSupport = (doc.getObject("XZ_Plane"), [""])
sketch22.MapMode = "FlatFace"
sketch22.AttachmentOffset = App.Placement(App.Vector(0, 0, -14.417739), App.Rotation())
sketch22.addGeometry([
    Part.LineSegment(App.Vector(-5, -26, 0), App.Vector(-5, 21, 0)),
    Part.LineSegment(App.Vector(-5, 21, 0), App.Vector(-31, 21, 0)),
    Part.LineSegment(App.Vector(-31, 21, 0), App.Vector(-31, -26, 0)),
    Part.LineSegment(App.Vector(-31, -26, 0), App.Vector(-5, -26, 0)),
], False)
sketch22.addConstraint([
    Sketcher.Constraint("Coincident", 0, 2, 1, 1),
    Sketcher.Constraint("Coincident", 1, 2, 2, 1),
    Sketcher.Constraint("Coincident", 2, 2, 3, 1),
    Sketcher.Constraint("Coincident", 3, 2, 0, 1),
    Sketcher.Constraint("Vertical", 0),
    Sketcher.Constraint("Horizontal", 1),
    Sketcher.Constraint("Vertical", 2),
    Sketcher.Constraint("Horizontal", 3),
    Sketcher.Constraint("DistanceY", 0, 1, 0, 2, 47.0),
    Sketcher.Constraint("DistanceX", 0, 2, -1, 1, 4.566898),
    Sketcher.Constraint("DistanceY", -1, 1, 0, 2, 21.456198),
    Sketcher.Constraint("DistanceX", 1, 2, 1, 1, 26.129652),
])
pocket20 = body.newObject("PartDesign::Pocket", "Pocket019")
pocket20.Profile = sketch22
pocket20.Length = 9

# Sketch on XZ plane
sketch23 = body.newObject("Sketcher::SketchObject", "Sketch022")
sketch23.AttachmentSupport = (doc.getObject("XZ_Plane"), [""])
sketch23.MapMode = "FlatFace"
sketch23.AttachmentOffset = App.Placement(App.Vector(0, 0, -14.417739), App.Rotation())
sketch23.addGeometry([
    Part.LineSegment(App.Vector(-30.7, -12, 0), App.Vector(-30.7, 8, 0)),
    Part.LineSegment(App.Vector(-30.7, 8, 0), App.Vector(-32.7, 8, 0)),
    Part.LineSegment(App.Vector(-32.7, 8, 0), App.Vector(-32.7, -12, 0)),
    Part.LineSegment(App.Vector(-32.7, -12, 0), App.Vector(-30.7, -12, 0)),
], False)
sketch23.addConstraint([
    Sketcher.Constraint("Coincident", 0, 2, 1, 1),
    Sketcher.Constraint("Coincident", 1, 2, 2, 1),
    Sketcher.Constraint("Coincident", 2, 2, 3, 1),
    Sketcher.Constraint("Coincident", 3, 2, 0, 1),
    Sketcher.Constraint("Vertical", 0),
    Sketcher.Constraint("Horizontal", 1),
    Sketcher.Constraint("Vertical", 2),
    Sketcher.Constraint("Horizontal", 3),
    Sketcher.Constraint("DistanceX", 1, 2, 1, 1, 2.0),
    Sketcher.Constraint("DistanceY", 0, 1, 0, 2, 20.0),
    Sketcher.Constraint("DistanceY", -1, 1, 0, 2, 7.956198),
    Sketcher.Constraint("DistanceX", 0, 2, -1, 1, 30.696551),
])
pocket21 = body.newObject("PartDesign::Pocket", "Pocket020")
pocket21.Profile = sketch23
pocket21.Length = 5

# Sketch on XY plane
sketch24 = body.newObject("Sketcher::SketchObject", "Sketch023")
sketch24.AttachmentSupport = (doc.getObject("XY_Plane"), [""])
sketch24.MapMode = "FlatFace"
sketch24.AttachmentOffset = App.Placement(App.Vector(0, 0, 45.456198), App.Rotation())
sketch24.addGeometry([
    Part.LineSegment(App.Vector(-56, 52, 0), App.Vector(-56, 34, 0)),
    Part.LineSegment(App.Vector(-56, 34, 0), App.Vector(43, 34, 0)),
    Part.LineSegment(App.Vector(43, 34, 0), App.Vector(43, 52, 0)),
    Part.LineSegment(App.Vector(43, 52, 0), App.Vector(-56, 52, 0)),
], False)
sketch24.addConstraint([
    Sketcher.Constraint("Coincident", 0, 2, 1, 1),
    Sketcher.Constraint("Coincident", 1, 2, 2, 1),
    Sketcher.Constraint("Coincident", 2, 2, 3, 1),
    Sketcher.Constraint("Coincident", 3, 2, 0, 1),
    Sketcher.Constraint("Vertical", 0),
    Sketcher.Constraint("Horizontal", 1),
    Sketcher.Constraint("Vertical", 2),
    Sketcher.Constraint("Horizontal", 3),
    Sketcher.Constraint("DistanceY", -1, 1, 0, 2, 34.0),
    Sketcher.Constraint("DistanceX", 1, 1, 1, 2, 99.017305),
    Sketcher.Constraint("DistanceY", 0, 2, 0, 1, 17.897344),
    Sketcher.Constraint("DistanceX", 0, 2, -1, 1, 55.946551),
])
pocket22 = body.newObject("PartDesign::Pocket", "Pocket021")
pocket22.Profile = sketch24
pocket22.Length = 447

# Sketch on XY plane
sketch25 = body.newObject("Sketcher::SketchObject", "Sketch024")
sketch25.AttachmentSupport = (doc.getObject("XY_Plane"), [""])
sketch25.MapMode = "FlatFace"
sketch25.AttachmentOffset = App.Placement(App.Vector(0, 0, 45.456198), App.Rotation())
sketch25.addGeometry([
    Part.LineSegment(App.Vector(-54, 26, 0), App.Vector(24, 26, 0)),
    Part.LineSegment(App.Vector(24, 26, 0), App.Vector(22, 34, 0)),
    Part.LineSegment(App.Vector(22, 34, 0), App.Vector(-56, 34, 0)),
    Part.LineSegment(App.Vector(-56, 34, 0), App.Vector(-54, 26, 0)),
], False)
sketch25.addConstraint([
    Sketcher.Constraint("Coincident", 0, 2, 1, 1),
    Sketcher.Constraint("Coincident", 1, 2, 2, 1),
    Sketcher.Constraint("Coincident", 2, 2, 3, 1),
    Sketcher.Constraint("Coincident", 3, 2, 0, 1),
    Sketcher.Constraint("Horizontal", 0),
    Sketcher.Constraint("Horizontal", 2),
    Sketcher.Constraint("DistanceY", -1, 1, 1, 2, 34.0),
    Sketcher.Constraint("DistanceX", 2, 2, 3, 2, 1.867099),
    Sketcher.Constraint("DistanceX", 0, 1, 0, 2, 78.338046),
    Sketcher.Constraint("DistanceX", 2, 2, 2, 1, 78.404255),
    Sketcher.Constraint("DistanceX", 2, 2, -1, 1, 55.946551),
    Sketcher.Constraint("Distance", 1, 8.653647),
])
pocket23 = body.newObject("PartDesign::Pocket", "Pocket022")
pocket23.Profile = sketch25
pocket23.Length = 447

# Sketch on XZ plane
sketch26 = body.newObject("Sketcher::SketchObject", "Sketch025")
sketch26.AttachmentSupport = (doc.getObject("XZ_Plane"), [""])
sketch26.MapMode = "FlatFace"
sketch26.AttachmentOffset = App.Placement(App.Vector(0, 0, -23.417739), App.Rotation())
sketch26.addGeometry([
    Part.LineSegment(App.Vector(-5, -26, 0), App.Vector(-5, 21, 0)),
    Part.LineSegment(App.Vector(-5, 21, 0), App.Vector(-31, 21, 0)),
    Part.LineSegment(App.Vector(-31, 21, 0), App.Vector(-31, -26, 0)),
    Part.LineSegment(App.Vector(-31, -26, 0), App.Vector(-5, -26, 0)),
], False)
sketch26.addConstraint([
    Sketcher.Constraint("Coincident", 0, 2, 1, 1),
    Sketcher.Constraint("Coincident", 1, 2, 2, 1),
    Sketcher.Constraint("Coincident", 2, 2, 3, 1),
    Sketcher.Constraint("Coincident", 3, 2, 0, 1),
    Sketcher.Constraint("Vertical", 0),
    Sketcher.Constraint("Horizontal", 1),
    Sketcher.Constraint("Vertical", 2),
    Sketcher.Constraint("Horizontal", 3),
    Sketcher.Constraint("DistanceY", 0, 1, 0, 2, 47.0),
    Sketcher.Constraint("DistanceX", 0, 2, -1, 1, 4.566898),
    Sketcher.Constraint("DistanceY", -1, 1, 0, 2, 21.456198),
    Sketcher.Constraint("DistanceX", 1, 2, 1, 1, 26.129652),
])
pocket24 = body.newObject("PartDesign::Pocket", "Pocket023")
pocket24.Profile = sketch26
pocket24.Length = 447

# Sketch on XZ plane
sketch27 = body.newObject("Sketcher::SketchObject", "Sketch026")
sketch27.AttachmentSupport = (doc.getObject("XZ_Plane"), [""])
sketch27.MapMode = "FlatFace"
sketch27.AttachmentOffset = App.Placement(App.Vector(0, 0, -14.417739), App.Rotation())
sketch27.addGeometry([
    Part.LineSegment(App.Vector(5, -26, 0), App.Vector(5, 21, 0)),
    Part.LineSegment(App.Vector(5, 21, 0), App.Vector(-7, 21, 0)),
    Part.LineSegment(App.Vector(-7, 21, 0), App.Vector(-7, -26, 0)),
    Part.LineSegment(App.Vector(-7, -26, 0), App.Vector(5, -26, 0)),
], False)
sketch27.addConstraint([
    Sketcher.Constraint("Coincident", 0, 2, 1, 1),
    Sketcher.Constraint("Coincident", 1, 2, 2, 1),
    Sketcher.Constraint("Coincident", 2, 2, 3, 1),
    Sketcher.Constraint("Coincident", 3, 2, 0, 1),
    Sketcher.Constraint("Vertical", 0),
    Sketcher.Constraint("Horizontal", 1),
    Sketcher.Constraint("Vertical", 2),
    Sketcher.Constraint("Horizontal", 3),
    Sketcher.Constraint("DistanceY", 0, 1, 0, 2, 47.0),
    Sketcher.Constraint("DistanceX", -1, 1, 0, 2, 5.433102),
    Sketcher.Constraint("DistanceY", -1, 1, 0, 2, 21.456198),
    Sketcher.Constraint("DistanceX", 1, 2, 1, 1, 12.716067),
])
pocket25 = body.newObject("PartDesign::Pocket", "Pocket024")
pocket25.Profile = sketch27
pocket25.Length = 90

# Sketch on XZ plane
sketch28 = body.newObject("Sketcher::SketchObject", "Sketch027")
sketch28.AttachmentSupport = (doc.getObject("XZ_Plane"), [""])
sketch28.MapMode = "FlatFace"
sketch28.AttachmentOffset = App.Placement(App.Vector(0, 0, -25.535817), App.Rotation())
sketch28.addGeometry([
    Part.LineSegment(App.Vector(-22, -28, 0), App.Vector(-54, -28, 0)),  # 0
    Part.LineSegment(App.Vector(-54, -28, 0), App.Vector(-54, 23, 0)),  # 1
    Part.LineSegment(App.Vector(-54, 23, 0), App.Vector(-22, 23, 0)),  # 2
    Part.LineSegment(App.Vector(-22, 23, 0), App.Vector(-22, 45, 0)),  # 3
    Part.LineSegment(App.Vector(-22, 45, 0), App.Vector(24, 45, 0)),  # 4
    Part.LineSegment(App.Vector(24, 45, 0), App.Vector(24, -50, 0)),  # 5
    Part.LineSegment(App.Vector(24, -50, 0), App.Vector(-22, -50, 0)),  # 6
    Part.LineSegment(App.Vector(-22, -50, 0), App.Vector(-22, -28, 0)),  # 7
], False)
sketch28.addConstraint([
    Sketcher.Constraint("Coincident", 0, 2, 1, 1),
    Sketcher.Constraint("Coincident", 1, 2, 2, 1),
    Sketcher.Constraint("Coincident", 2, 2, 3, 1),
    Sketcher.Constraint("Coincident", 3, 2, 4, 1),
    Sketcher.Constraint("Coincident", 4, 2, 5, 1),
    Sketcher.Constraint("Coincident", 5, 2, 6, 1),
    Sketcher.Constraint("Coincident", 6, 2, 7, 1),
    Sketcher.Constraint("Coincident", 7, 2, 0, 1),
    Sketcher.Constraint("Horizontal", 0),
    Sketcher.Constraint("Vertical", 1),
    Sketcher.Constraint("Horizontal", 2),
    Sketcher.Constraint("Vertical", 3),
    Sketcher.Constraint("Horizontal", 4),
    Sketcher.Constraint("Vertical", 5),
    Sketcher.Constraint("Horizontal", 6),
    Sketcher.Constraint("Vertical", 7),
    Sketcher.Constraint("Vertical", 3, 2, 6, 2),
    Sketcher.Constraint("Equal", 3, 7),
    Sketcher.Constraint("DistanceY", 1, 1, 1, 2, 51.0),
    Sketcher.Constraint("DistanceY", 3, 1, 3, 2, 22.0),
    Sketcher.Constraint("DistanceX", 0, 2, 0, 1, 32.132901),
    Sketcher.Constraint("DistanceY", 0, 2, -1, 1, 27.543802),
    Sketcher.Constraint("DistanceX", 4, 1, 4, 2, 46.205145),
    Sketcher.Constraint("DistanceX", 0, 2, -1, 1, 54.079451),
])
pad3 = body.newObject("PartDesign::Pad", "Pad002")
pad3.Profile = sketch28
pad3.Length = 9
pad3.Reversed = True

# Sketch on XZ plane
sketch29 = body.newObject("Sketcher::SketchObject", "Sketch028")
sketch29.AttachmentSupport = (doc.getObject("XZ_Plane"), [""])
sketch29.MapMode = "FlatFace"
sketch29.AttachmentOffset = App.Placement(App.Vector(0, 0, -25.535817), App.Rotation())
sketch29.addGeometry([
    Part.LineSegment(App.Vector(5, -26, 0), App.Vector(5, 21, 0)),
    Part.LineSegment(App.Vector(5, 21, 0), App.Vector(-31, 21, 0)),
    Part.LineSegment(App.Vector(-31, 21, 0), App.Vector(-31, -26, 0)),
    Part.LineSegment(App.Vector(-31, -26, 0), App.Vector(5, -26, 0)),
], False)
sketch29.addConstraint([
    Sketcher.Constraint("Coincident", 0, 2, 1, 1),
    Sketcher.Constraint("Coincident", 1, 2, 2, 1),
    Sketcher.Constraint("Coincident", 2, 2, 3, 1),
    Sketcher.Constraint("Coincident", 3, 2, 0, 1),
    Sketcher.Constraint("Vertical", 0),
    Sketcher.Constraint("Horizontal", 1),
    Sketcher.Constraint("Vertical", 2),
    Sketcher.Constraint("Horizontal", 3),
    Sketcher.Constraint("DistanceY", 0, 1, 0, 2, 47.0),
    Sketcher.Constraint("DistanceX", -1, 1, 0, 2, 5.433102),
    Sketcher.Constraint("DistanceY", -1, 1, 0, 2, 21.456198),
    Sketcher.Constraint("DistanceX", 1, 2, 1, 1, 36.129652),
])
pocket26 = body.newObject("PartDesign::Pocket", "Pocket025")
pocket26.Profile = sketch29
pocket26.Length = 9

# Sketch on XZ plane
sketch30 = body.newObject("Sketcher::SketchObject", "Sketch029")
sketch30.AttachmentSupport = (doc.getObject("XZ_Plane"), [""])
sketch30.MapMode = "FlatFace"
sketch30.AttachmentOffset = App.Placement(App.Vector(0, 0, -14.417739), App.Rotation())
sketch30.addGeometry([
    Part.LineSegment(App.Vector(-15, -31, 0), App.Vector(-15, 27, 0)),
    Part.LineSegment(App.Vector(-15, 27, 0), App.Vector(-31, 27, 0)),
    Part.LineSegment(App.Vector(-31, 27, 0), App.Vector(-31, -31, 0)),
    Part.LineSegment(App.Vector(-31, -31, 0), App.Vector(-15, -31, 0)),
], False)
sketch30.addConstraint([
    Sketcher.Constraint("Coincident", 0, 2, 1, 1),
    Sketcher.Constraint("Coincident", 1, 2, 2, 1),
    Sketcher.Constraint("Coincident", 2, 2, 3, 1),
    Sketcher.Constraint("Coincident", 3, 2, 0, 1),
    Sketcher.Constraint("Vertical", 0),
    Sketcher.Constraint("Horizontal", 1),
    Sketcher.Constraint("Vertical", 2),
    Sketcher.Constraint("Horizontal", 3),
    Sketcher.Constraint("DistanceX", 1, 2, 1, 1, 16.0),
    Sketcher.Constraint("DistanceY", 0, 1, 0, 2, 58.0),
    Sketcher.Constraint("DistanceY", -1, 1, 0, 2, 26.956198),
    Sketcher.Constraint("DistanceX", 0, 2, -1, 1, 14.696551),
])
pocket27 = body.newObject("PartDesign::Pocket", "Pocket026")
pocket27.Profile = sketch30
pocket27.Length = 19

# Sketch on XY plane
sketch31 = body.newObject("Sketcher::SketchObject", "Sketch030")
sketch31.AttachmentSupport = (doc.getObject("XY_Plane"), [""])
sketch31.MapMode = "FlatFace"
sketch31.AttachmentOffset = App.Placement(App.Vector(0, 0, -25.543802), App.Rotation())
sketch31.addGeometry([
    Part.LineSegment(App.Vector(-30.7, 34.5, 0), App.Vector(-30.7, 33.4, 0)),
    Part.LineSegment(App.Vector(-30.7, 33.4, 0), App.Vector(-21.9, 33.4, 0)),
    Part.LineSegment(App.Vector(-21.9, 33.4, 0), App.Vector(-21.9, 34.5, 0)),
    Part.LineSegment(App.Vector(-21.9, 34.5, 0), App.Vector(-30.7, 34.5, 0)),
], False)
sketch31.addConstraint([
    Sketcher.Constraint("Coincident", 0, 2, 1, 1),
    Sketcher.Constraint("Coincident", 1, 2, 2, 1),
    Sketcher.Constraint("Coincident", 2, 2, 3, 1),
    Sketcher.Constraint("Coincident", 3, 2, 0, 1),
    Sketcher.Constraint("Vertical", 0),
    Sketcher.Constraint("Horizontal", 1),
    Sketcher.Constraint("Vertical", 2),
    Sketcher.Constraint("Horizontal", 3),
    Sketcher.Constraint("DistanceX", 1, 1, 1, 2, 8.75),
    Sketcher.Constraint("DistanceY", 0, 2, 0, 1, 1.118078),
    Sketcher.Constraint("DistanceX", 0, 2, -1, 1, 30.696551),
    Sketcher.Constraint("DistanceY", -1, 1, 0, 2, 33.417739),
])
pad4 = body.newObject("PartDesign::Pad", "Pad003")
pad4.Profile = sketch31
pad4.Length = 48

# Sketch on YZ plane
sketch32 = body.newObject("Sketcher::SketchObject", "Sketch031")
sketch32.AttachmentSupport = (doc.getObject("YZ_Plane"), [""])
sketch32.MapMode = "FlatFace"
sketch32.AttachmentOffset = App.Placement(App.Vector(0, 0, -21.946551), App.Rotation())
sketch32.addGeometry([
    Part.LineSegment(App.Vector(34.5, 21.5, 0), App.Vector(33.4, 21.5, 0)),
    Part.LineSegment(App.Vector(33.4, 21.5, 0), App.Vector(33.4, -25.5, 0)),
    Part.LineSegment(App.Vector(33.4, -25.5, 0), App.Vector(34.5, -25.5, 0)),
    Part.LineSegment(App.Vector(34.5, -25.5, 0), App.Vector(34.5, 21.5, 0)),
], False)
sketch32.addConstraint([
    Sketcher.Constraint("Coincident", 0, 2, 1, 1),
    Sketcher.Constraint("Coincident", 1, 2, 2, 1),
    Sketcher.Constraint("Coincident", 2, 2, 3, 1),
    Sketcher.Constraint("Coincident", 3, 2, 0, 1),
    Sketcher.Constraint("Horizontal", 0),
    Sketcher.Constraint("Vertical", 1),
    Sketcher.Constraint("Horizontal", 2),
    Sketcher.Constraint("Vertical", 3),
    Sketcher.Constraint("DistanceY", 1, 2, 1, 1, 47.0),
    Sketcher.Constraint("DistanceY", -1, 1, 0, 2, 21.456198),
    Sketcher.Constraint("DistanceX", 0, 2, 0, 1, 1.118078),
    Sketcher.Constraint("DistanceX", -1, 1, 0, 2, 33.417739),
])
pad5 = body.newObject("PartDesign::Pad", "Pad004")
pad5.Profile = sketch32
pad5.Length = 10

# Sketch on XY plane
sketch33 = body.newObject("Sketcher::SketchObject", "Sketch032")
sketch33.AttachmentSupport = (doc.getObject("XY_Plane"), [""])
sketch33.MapMode = "FlatFace"
sketch33.AttachmentOffset = App.Placement(App.Vector(0, 0, 23.456198), App.Rotation())
sketch33.addGeometry([
    Part.LineSegment(App.Vector(-54.1, 34.5, 0), App.Vector(-54.1, 33.5, 0)),
    Part.LineSegment(App.Vector(-54.1, 33.5, 0), App.Vector(-21.9, 33.5, 0)),
    Part.LineSegment(App.Vector(-21.9, 33.5, 0), App.Vector(-21.9, 34.5, 0)),
    Part.LineSegment(App.Vector(-21.9, 34.5, 0), App.Vector(-54.1, 34.5, 0)),
], False)
sketch33.addConstraint([
    Sketcher.Constraint("Coincident", 0, 2, 1, 1),
    Sketcher.Constraint("Coincident", 1, 2, 2, 1),
    Sketcher.Constraint("Coincident", 2, 2, 3, 1),
    Sketcher.Constraint("Coincident", 3, 2, 0, 1),
    Sketcher.Constraint("Vertical", 0),
    Sketcher.Constraint("Horizontal", 1),
    Sketcher.Constraint("Vertical", 2),
    Sketcher.Constraint("Horizontal", 3),
    Sketcher.Constraint("DistanceY", 0, 2, 0, 1, 1.0),
    Sketcher.Constraint("DistanceX", 1, 1, 1, 2, 32.132901),
    Sketcher.Constraint("DistanceX", 0, 2, -1, 1, 54.079451),
    Sketcher.Constraint("DistanceY", -1, 1, 0, 2, 33.535817),
])
pad6 = body.newObject("PartDesign::Pad", "Pad005")
pad6.Profile = sketch33
pad6.Length = 22

# Sketch on XY plane
sketch34 = body.newObject("Sketcher::SketchObject", "Sketch033")
sketch34.AttachmentSupport = (doc.getObject("XY_Plane"), [""])
sketch34.MapMode = "FlatFace"
sketch34.AttachmentOffset = App.Placement(App.Vector(0, 0, -27.543802), App.Rotation())
sketch34.addGeometry([
    Part.LineSegment(App.Vector(-21.9, 34.5, 0), App.Vector(-21.9, 33.4, 0)),
    Part.LineSegment(App.Vector(-21.9, 33.4, 0), App.Vector(-54.1, 33.4, 0)),
    Part.LineSegment(App.Vector(-54.1, 33.4, 0), App.Vector(-54.1, 34.5, 0)),
    Part.LineSegment(App.Vector(-54.1, 34.5, 0), App.Vector(-21.9, 34.5, 0)),
], False)
sketch34.addConstraint([
    Sketcher.Constraint("Coincident", 0, 2, 1, 1),
    Sketcher.Constraint("Coincident", 1, 2, 2, 1),
    Sketcher.Constraint("Coincident", 2, 2, 3, 1),
    Sketcher.Constraint("Coincident", 3, 2, 0, 1),
    Sketcher.Constraint("Vertical", 0),
    Sketcher.Constraint("Horizontal", 1),
    Sketcher.Constraint("Vertical", 2),
    Sketcher.Constraint("Horizontal", 3),
    Sketcher.Constraint("DistanceX", 1, 2, 1, 1, 32.132901),
    Sketcher.Constraint("DistanceY", 0, 2, 0, 1, 1.118078),
    Sketcher.Constraint("DistanceX", 0, 2, -1, 1, 21.946551),
    Sketcher.Constraint("DistanceY", -1, 1, 0, 2, 33.417739),
])
pad7 = body.newObject("PartDesign::Pad", "Pad006")
pad7.Profile = sketch34
pad7.Length = 22
pad7.Reversed = True

doc.recompute()
